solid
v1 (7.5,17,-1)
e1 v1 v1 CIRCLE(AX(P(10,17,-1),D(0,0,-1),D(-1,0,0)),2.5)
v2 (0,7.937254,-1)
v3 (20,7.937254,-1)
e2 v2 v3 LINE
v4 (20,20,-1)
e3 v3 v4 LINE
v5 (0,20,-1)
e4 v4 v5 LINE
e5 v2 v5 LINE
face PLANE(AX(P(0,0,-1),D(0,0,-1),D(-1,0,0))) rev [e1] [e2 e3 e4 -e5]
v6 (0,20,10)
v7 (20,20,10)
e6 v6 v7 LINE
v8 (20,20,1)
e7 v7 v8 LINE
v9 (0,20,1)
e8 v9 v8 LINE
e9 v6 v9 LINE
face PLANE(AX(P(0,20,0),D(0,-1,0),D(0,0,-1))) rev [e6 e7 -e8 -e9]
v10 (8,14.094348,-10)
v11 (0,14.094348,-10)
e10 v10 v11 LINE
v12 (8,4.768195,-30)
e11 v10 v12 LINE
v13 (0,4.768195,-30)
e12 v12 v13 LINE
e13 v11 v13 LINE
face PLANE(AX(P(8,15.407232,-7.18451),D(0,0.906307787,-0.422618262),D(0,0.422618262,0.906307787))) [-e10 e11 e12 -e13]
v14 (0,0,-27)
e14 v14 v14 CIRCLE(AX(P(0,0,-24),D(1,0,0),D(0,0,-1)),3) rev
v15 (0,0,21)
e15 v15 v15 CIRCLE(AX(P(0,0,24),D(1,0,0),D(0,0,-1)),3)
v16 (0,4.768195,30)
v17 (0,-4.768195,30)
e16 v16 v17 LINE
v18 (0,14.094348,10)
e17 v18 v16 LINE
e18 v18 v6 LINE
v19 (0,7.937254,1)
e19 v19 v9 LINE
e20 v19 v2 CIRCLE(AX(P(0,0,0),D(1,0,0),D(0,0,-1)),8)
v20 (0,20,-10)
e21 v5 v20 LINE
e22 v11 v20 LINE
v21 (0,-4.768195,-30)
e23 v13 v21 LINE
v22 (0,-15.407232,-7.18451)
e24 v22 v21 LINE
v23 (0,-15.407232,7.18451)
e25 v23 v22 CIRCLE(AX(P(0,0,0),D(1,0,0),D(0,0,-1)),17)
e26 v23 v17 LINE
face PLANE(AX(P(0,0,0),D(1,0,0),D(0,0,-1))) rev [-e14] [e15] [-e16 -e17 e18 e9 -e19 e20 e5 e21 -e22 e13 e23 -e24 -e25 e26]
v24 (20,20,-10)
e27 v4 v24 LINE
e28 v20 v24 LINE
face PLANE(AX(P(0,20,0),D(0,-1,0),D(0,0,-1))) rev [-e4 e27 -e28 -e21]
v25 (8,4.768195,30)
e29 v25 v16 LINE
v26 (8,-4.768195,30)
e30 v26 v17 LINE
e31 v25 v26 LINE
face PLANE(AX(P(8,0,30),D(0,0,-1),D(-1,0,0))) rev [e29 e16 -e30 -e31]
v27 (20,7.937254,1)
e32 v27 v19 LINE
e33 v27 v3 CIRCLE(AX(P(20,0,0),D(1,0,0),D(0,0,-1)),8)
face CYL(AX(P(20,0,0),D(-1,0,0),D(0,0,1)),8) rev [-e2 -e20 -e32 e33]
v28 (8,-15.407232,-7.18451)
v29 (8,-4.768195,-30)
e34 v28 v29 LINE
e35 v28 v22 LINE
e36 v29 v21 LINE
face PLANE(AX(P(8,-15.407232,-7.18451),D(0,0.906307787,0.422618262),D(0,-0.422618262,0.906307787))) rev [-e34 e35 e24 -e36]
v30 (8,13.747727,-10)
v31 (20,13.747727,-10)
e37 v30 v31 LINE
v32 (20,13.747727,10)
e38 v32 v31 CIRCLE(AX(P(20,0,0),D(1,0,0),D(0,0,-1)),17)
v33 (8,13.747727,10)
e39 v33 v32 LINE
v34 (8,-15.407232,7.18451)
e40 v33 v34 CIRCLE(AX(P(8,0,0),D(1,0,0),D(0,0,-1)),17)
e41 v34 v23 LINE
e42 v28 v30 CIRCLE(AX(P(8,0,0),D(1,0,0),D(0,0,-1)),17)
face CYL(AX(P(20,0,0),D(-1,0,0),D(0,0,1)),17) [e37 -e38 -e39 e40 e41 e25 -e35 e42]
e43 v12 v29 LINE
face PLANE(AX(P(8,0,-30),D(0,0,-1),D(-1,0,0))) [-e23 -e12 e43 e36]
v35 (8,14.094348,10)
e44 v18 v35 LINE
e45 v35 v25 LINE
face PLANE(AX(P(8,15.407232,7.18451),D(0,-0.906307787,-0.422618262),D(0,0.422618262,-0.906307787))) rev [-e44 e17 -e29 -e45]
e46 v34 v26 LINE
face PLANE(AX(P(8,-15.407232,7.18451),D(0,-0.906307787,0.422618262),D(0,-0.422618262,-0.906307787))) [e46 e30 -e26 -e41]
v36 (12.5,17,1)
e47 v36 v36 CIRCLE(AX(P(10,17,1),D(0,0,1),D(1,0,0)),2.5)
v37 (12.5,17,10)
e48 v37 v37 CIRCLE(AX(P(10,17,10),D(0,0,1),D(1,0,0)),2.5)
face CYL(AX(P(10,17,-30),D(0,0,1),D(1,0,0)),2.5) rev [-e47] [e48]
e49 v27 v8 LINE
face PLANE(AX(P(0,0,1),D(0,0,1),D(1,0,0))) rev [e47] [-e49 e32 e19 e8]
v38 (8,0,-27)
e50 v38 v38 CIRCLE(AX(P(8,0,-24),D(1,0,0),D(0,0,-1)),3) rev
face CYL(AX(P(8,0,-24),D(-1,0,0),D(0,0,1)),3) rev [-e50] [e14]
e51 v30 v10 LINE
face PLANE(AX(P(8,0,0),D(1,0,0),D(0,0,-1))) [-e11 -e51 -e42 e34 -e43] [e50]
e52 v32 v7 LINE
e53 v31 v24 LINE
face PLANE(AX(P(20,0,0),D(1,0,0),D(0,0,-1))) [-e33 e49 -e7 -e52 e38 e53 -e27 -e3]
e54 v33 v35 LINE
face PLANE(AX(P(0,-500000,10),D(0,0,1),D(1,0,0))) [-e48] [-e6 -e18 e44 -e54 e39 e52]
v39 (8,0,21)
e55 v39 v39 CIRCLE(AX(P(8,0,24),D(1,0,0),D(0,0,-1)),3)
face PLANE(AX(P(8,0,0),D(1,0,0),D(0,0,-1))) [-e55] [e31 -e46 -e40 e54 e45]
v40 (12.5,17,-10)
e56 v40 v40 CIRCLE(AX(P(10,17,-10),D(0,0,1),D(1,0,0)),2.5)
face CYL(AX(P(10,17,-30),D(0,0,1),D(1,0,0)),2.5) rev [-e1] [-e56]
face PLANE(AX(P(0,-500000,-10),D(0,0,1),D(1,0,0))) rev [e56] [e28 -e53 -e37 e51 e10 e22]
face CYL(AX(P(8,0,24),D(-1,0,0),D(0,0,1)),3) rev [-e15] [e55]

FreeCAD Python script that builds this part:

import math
import FreeCAD as App
import Part
import Sketcher
from FreeCAD import Vector
Q = App.Units.Quantity

doc = App.newDocument("Part")
params = doc.addObject("Spreadsheet::Sheet", "Params")
for row, (alias, value) in enumerate([
    ("sketch1_diameter", "6 mm"),
    ("sketch1_radius", "17 mm"),
    ("pad1_length", "8 mm"),
    ("sketch2_diameter", "6 mm"),
    ("sketch2_radius", "17 mm"),
    ("pad2_length", "8 mm"),
    ("sketch3_diameter", "34 mm"),
    ("sketch3_diameter2", "16 mm"),
    ("pad3_length", "20 mm"),
    ("sketch4_width", "20 mm"),
    ("sketch5_width", "20 mm"),
    ("sketch5_height", "2 mm"),
    ("pocket1_length", "20 mm"),
    ("sketch6_diameter", "5 mm"),
], start=1):
    params.set(f"A{row}", alias)
    params.set(f"B{row}", "=" + value)
    params.setAlias(f"B{row}", alias)

body = doc.addObject("PartDesign::Body", "Body")

# Sketch on YZ plane
sketch1 = body.newObject("Sketcher::SketchObject", "Sketch")
sketch1.AttachmentSupport = (doc.getObject("YZ_Plane"), [""])
sketch1.MapMode = "FlatFace"
sketch1.addGeometry(Part.LineSegment(Vector(15.4, 7.2, 0), Vector(4.8, 30, 0)), False)
sketch1.addGeometry(Part.LineSegment(Vector(4.8, 30, 0), Vector(-4.8, 30, 0)), False)
sketch1.addGeometry(Part.LineSegment(Vector(-4.8, 30, 0), Vector(-15.4, 7.2, 0)), False)
sketch1.addGeometry(Part.ArcOfCircle(Part.Circle(Vector(0, 0, 0), Vector(0, 0, 1), 17), math.radians(25), math.radians(155)), False)
sketch1.addGeometry(Part.Circle(Vector(0, 24, 0), Vector(0, 0, 1), 3), False)
sketch1.addConstraint(Sketcher.Constraint("Coincident", 0, 2, 1, 1))
sketch1.addConstraint(Sketcher.Constraint("Coincident", 1, 2, 2, 1))
sketch1.addConstraint(Sketcher.Constraint("Tangent", 2, 2, 3, 2))
sketch1.addConstraint(Sketcher.Constraint("Tangent", 3, 1, 0, 1))
sketch1.addConstraint(Sketcher.Constraint("Horizontal", 1))
sketch1.addConstraint(Sketcher.Constraint("Coincident", 3, 3, -1, 1))
sketch1.addConstraint(Sketcher.Constraint("PointOnObject", 4, 3, -2))
sketch1.addConstraint(Sketcher.Constraint("Horizontal", 2, 2, 3, 1))
sketch1.addConstraint(Sketcher.Constraint("Diameter", 4, Q("6 mm")))
sketch1.addConstraint(Sketcher.Constraint("Radius", 3, Q("17 mm")))
sketch1.addConstraint(Sketcher.Constraint("Angle", 0, Q("115 deg")))
sketch1.addConstraint(Sketcher.Constraint("DistanceY", -1, 1, 4, 3, Q("24 mm")))
sketch1.addConstraint(Sketcher.Constraint("DistanceY", -1, 1, 0, 2, Q("30 mm")))
sketch1.setExpression("Constraints[8]", "Params.sketch1_diameter")
sketch1.setExpression("Constraints[9]", "Params.sketch1_radius")
pad1 = body.newObject("PartDesign::Pad", "Pad")
pad1.Profile = sketch1
pad1.setExpression("Length", "Params.pad1_length")
body2 = doc.addObject("PartDesign::Body", "Body001")

# Sketch on YZ plane
sketch2 = body2.newObject("Sketcher::SketchObject", "Sketch001")
sketch2.AttachmentSupport = (doc.getObject("YZ_Plane001"), [""])
sketch2.MapMode = "FlatFace"
sketch2.addGeometry(Part.LineSegment(Vector(4.8, -30, 0), Vector(15.4, -7.2, 0)), False)
sketch2.addGeometry(Part.ArcOfCircle(Part.Circle(Vector(0, 0, 0), Vector(0, 0, 1), 17), math.radians(-90), math.radians(-25)), False)
sketch2.addGeometry(Part.ArcOfCircle(Part.Circle(Vector(0, 0, 0), Vector(0, 0, 1), 17), math.radians(-155), math.radians(-90)), False)
sketch2.addGeometry(Part.LineSegment(Vector(-15.4, -7.2, 0), Vector(-4.8, -30, 0)), False)
sketch2.addGeometry(Part.LineSegment(Vector(-4.8, -30, 0), Vector(4.8, -30, 0)), False)
sketch2.addGeometry(Part.Circle(Vector(0, -24, 0), Vector(0, 0, 1), 3), False)
sketch2.addConstraint(Sketcher.Constraint("Tangent", 0, 2, 1, 2))
sketch2.addConstraint(Sketcher.Constraint("Tangent", 1, 1, 2, 2))
sketch2.addConstraint(Sketcher.Constraint("Tangent", 2, 1, 3, 1))
sketch2.addConstraint(Sketcher.Constraint("Coincident", 3, 2, 4, 1))
sketch2.addConstraint(Sketcher.Constraint("Coincident", 4, 2, 0, 1))
sketch2.addConstraint(Sketcher.Constraint("Horizontal", 4))
sketch2.addConstraint(Sketcher.Constraint("Coincident", 1, 3, -1, 1))
sketch2.addConstraint(Sketcher.Constraint("Equal", 1, 2))
sketch2.addConstraint(Sketcher.Constraint("PointOnObject", 5, 3, -2))
sketch2.addConstraint(Sketcher.Constraint("PointOnObject", 1, 1, -2))
sketch2.addConstraint(Sketcher.Constraint("Horizontal", 0, 2, 2, 1))
sketch2.addConstraint(Sketcher.Constraint("Diameter", 5, Q("6 mm")))
sketch2.addConstraint(Sketcher.Constraint("Radius", 1, Q("17 mm")))
sketch2.addConstraint(Sketcher.Constraint("Angle", 0, Q("65 deg")))
sketch2.addConstraint(Sketcher.Constraint("DistanceY", 5, 3, -1, 1, Q("24 mm")))
sketch2.addConstraint(Sketcher.Constraint("DistanceY", 3, 2, -1, 1, Q("30 mm")))
sketch2.setExpression("Constraints[11]", "Params.sketch2_diameter")
sketch2.setExpression("Constraints[12]", "Params.sketch2_radius")
pad2 = body2.newObject("PartDesign::Pad", "Pad001")
pad2.Profile = sketch2
pad2.setExpression("Length", "Params.pad2_length")
body.AllowCompound = True
doc.recompute()

boolean = body.newObject("PartDesign::Boolean", "Boolean")
boolean.Type = "Fuse"
boolean.addObjects([body2])

# Sketch on YZ plane
sketch3 = body.newObject("Sketcher::SketchObject", "Sketch002")
sketch3.AttachmentSupport = (doc.getObject("YZ_Plane"), [""])
sketch3.MapMode = "FlatFace"
sketch3.addGeometry(Part.Circle(Vector(0, 0, 0), Vector(0, 0, 1), 17), False)
sketch3.addGeometry(Part.Circle(Vector(0, 0, 0), Vector(0, 0, 1), 8), False)
sketch3.addConstraint(Sketcher.Constraint("Coincident", 0, 3, -1, 1))
sketch3.addConstraint(Sketcher.Constraint("Coincident", 1, 3, -1, 1))
sketch3.addConstraint(Sketcher.Constraint("Diameter", 0, Q("34 mm")))
sketch3.addConstraint(Sketcher.Constraint("Diameter", 1, Q("16 mm")))
sketch3.setExpression("Constraints[2]", "Params.sketch3_diameter")
sketch3.setExpression("Constraints[3]", "Params.sketch3_diameter2")
pad3 = body.newObject("PartDesign::Pad", "Pad002")
pad3.Profile = sketch3
pad3.setExpression("Length", "Params.pad3_length")

# Sketch on XZ plane
sketch4 = body.newObject("Sketcher::SketchObject", "Sketch003")
sketch4.AttachmentSupport = (doc.getObject("XZ_Plane"), [""])
sketch4.MapMode = "FlatFace"
sketch4.AttachmentOffset = App.Placement(Vector(0, 0, -20), App.Rotation())
sketch4.addGeometry(Part.LineSegment(Vector(0, -10, 0), Vector(0, 10, 0)), False)
sketch4.addGeometry(Part.LineSegment(Vector(0, 10, 0), Vector(20, 10, 0)), False)
sketch4.addGeometry(Part.LineSegment(Vector(20, 10, 0), Vector(20, -10, 0)), False)
sketch4.addGeometry(Part.LineSegment(Vector(20, -10, 0), Vector(0, -10, 0)), False)
sketch4.addConstraint(Sketcher.Constraint("Coincident", 0, 2, 1, 1))
sketch4.addConstraint(Sketcher.Constraint("Coincident", 1, 2, 2, 1))
sketch4.addConstraint(Sketcher.Constraint("Coincident", 2, 2, 3, 1))
sketch4.addConstraint(Sketcher.Constraint("Coincident", 3, 2, 0, 1))
sketch4.addConstraint(Sketcher.Constraint("Vertical", 0))
sketch4.addConstraint(Sketcher.Constraint("Horizontal", 1))
sketch4.addConstraint(Sketcher.Constraint("Vertical", 2))
sketch4.addConstraint(Sketcher.Constraint("Horizontal", 3))
sketch4.addConstraint(Sketcher.Constraint("Symmetric", 0, 2, 3, 2, -1, 1))
sketch4.addConstraint(Sketcher.Constraint("Equal", 3, 0))
sketch4.addConstraint(Sketcher.Constraint("DistanceX", 1, 1, 1, 2, Q("20 mm")))
sketch4.setExpression("Constraints[10]", "Params.sketch4_width")
pad4 = body.newObject("PartDesign::Pad", "Pad003")
pad4.Profile = sketch4
pad4.Type = "UpToFirst"

# Sketch on XZ plane
sketch5 = body.newObject("Sketcher::SketchObject", "Sketch004")
sketch5.AttachmentSupport = (doc.getObject("XZ_Plane"), [""])
sketch5.MapMode = "FlatFace"
sketch5.AttachmentOffset = App.Placement(Vector(0, 0, -20), App.Rotation())
sketch5.addGeometry(Part.LineSegment(Vector(0, -1, 0), Vector(0, 1, 0)), False)
sketch5.addGeometry(Part.LineSegment(Vector(0, 1, 0), Vector(20, 1, 0)), False)
sketch5.addGeometry(Part.LineSegment(Vector(20, 1, 0), Vector(20, -1, 0)), False)
sketch5.addGeometry(Part.LineSegment(Vector(20, -1, 0), Vector(0, -1, 0)), False)
sketch5.addConstraint(Sketcher.Constraint("Coincident", 0, 2, 1, 1))
sketch5.addConstraint(Sketcher.Constraint("Coincident", 1, 2, 2, 1))
sketch5.addConstraint(Sketcher.Constraint("Coincident", 2, 2, 3, 1))
sketch5.addConstraint(Sketcher.Constraint("Coincident", 3, 2, 0, 1))
sketch5.addConstraint(Sketcher.Constraint("Vertical", 0))
sketch5.addConstraint(Sketcher.Constraint("Horizontal", 1))
sketch5.addConstraint(Sketcher.Constraint("Vertical", 2))
sketch5.addConstraint(Sketcher.Constraint("Horizontal", 3))
sketch5.addConstraint(Sketcher.Constraint("Symmetric", 0, 2, 3, 2, -1, 1))
sketch5.addConstraint(Sketcher.Constraint("DistanceX", 1, 1, 1, 2, Q("20 mm")))
sketch5.addConstraint(Sketcher.Constraint("DistanceY", 0, 1, 0, 2, Q("2 mm")))
sketch5.setExpression("Constraints[9]", "Params.sketch5_width")
sketch5.setExpression("Constraints[10]", "Params.sketch5_height")
pocket1 = body.newObject("PartDesign::Pocket", "Pocket")
pocket1.Profile = sketch5
pocket1.setExpression("Length", "Params.pocket1_length")
pocket1.Reversed = True

# Sketch on XY plane
sketch6 = body.newObject("Sketcher::SketchObject", "Sketch005")
sketch6.AttachmentSupport = (doc.getObject("XY_Plane"), [""])
sketch6.MapMode = "FlatFace"
sketch6.AttachmentOffset = App.Placement(Vector(0, 0, 10), App.Rotation())
sketch6.addGeometry(Part.Circle(Vector(10, 17, 0), Vector(0, 0, 1), 2.5), False)
sketch6.addConstraint(Sketcher.Constraint("Diameter", 0, Q("5 mm")))
sketch6.addConstraint(Sketcher.Constraint("DistanceX", -1, 1, 0, 3, Q("10 mm")))
sketch6.addConstraint(Sketcher.Constraint("DistanceY", -1, 1, 0, 3, Q("17 mm")))
sketch6.setExpression("Constraints[0]", "Params.sketch6_diameter")
pocket2 = body.newObject("PartDesign::Pocket", "Pocket001")
pocket2.Profile = sketch6
pocket2.Type = "ThroughAll"

doc.recompute()
